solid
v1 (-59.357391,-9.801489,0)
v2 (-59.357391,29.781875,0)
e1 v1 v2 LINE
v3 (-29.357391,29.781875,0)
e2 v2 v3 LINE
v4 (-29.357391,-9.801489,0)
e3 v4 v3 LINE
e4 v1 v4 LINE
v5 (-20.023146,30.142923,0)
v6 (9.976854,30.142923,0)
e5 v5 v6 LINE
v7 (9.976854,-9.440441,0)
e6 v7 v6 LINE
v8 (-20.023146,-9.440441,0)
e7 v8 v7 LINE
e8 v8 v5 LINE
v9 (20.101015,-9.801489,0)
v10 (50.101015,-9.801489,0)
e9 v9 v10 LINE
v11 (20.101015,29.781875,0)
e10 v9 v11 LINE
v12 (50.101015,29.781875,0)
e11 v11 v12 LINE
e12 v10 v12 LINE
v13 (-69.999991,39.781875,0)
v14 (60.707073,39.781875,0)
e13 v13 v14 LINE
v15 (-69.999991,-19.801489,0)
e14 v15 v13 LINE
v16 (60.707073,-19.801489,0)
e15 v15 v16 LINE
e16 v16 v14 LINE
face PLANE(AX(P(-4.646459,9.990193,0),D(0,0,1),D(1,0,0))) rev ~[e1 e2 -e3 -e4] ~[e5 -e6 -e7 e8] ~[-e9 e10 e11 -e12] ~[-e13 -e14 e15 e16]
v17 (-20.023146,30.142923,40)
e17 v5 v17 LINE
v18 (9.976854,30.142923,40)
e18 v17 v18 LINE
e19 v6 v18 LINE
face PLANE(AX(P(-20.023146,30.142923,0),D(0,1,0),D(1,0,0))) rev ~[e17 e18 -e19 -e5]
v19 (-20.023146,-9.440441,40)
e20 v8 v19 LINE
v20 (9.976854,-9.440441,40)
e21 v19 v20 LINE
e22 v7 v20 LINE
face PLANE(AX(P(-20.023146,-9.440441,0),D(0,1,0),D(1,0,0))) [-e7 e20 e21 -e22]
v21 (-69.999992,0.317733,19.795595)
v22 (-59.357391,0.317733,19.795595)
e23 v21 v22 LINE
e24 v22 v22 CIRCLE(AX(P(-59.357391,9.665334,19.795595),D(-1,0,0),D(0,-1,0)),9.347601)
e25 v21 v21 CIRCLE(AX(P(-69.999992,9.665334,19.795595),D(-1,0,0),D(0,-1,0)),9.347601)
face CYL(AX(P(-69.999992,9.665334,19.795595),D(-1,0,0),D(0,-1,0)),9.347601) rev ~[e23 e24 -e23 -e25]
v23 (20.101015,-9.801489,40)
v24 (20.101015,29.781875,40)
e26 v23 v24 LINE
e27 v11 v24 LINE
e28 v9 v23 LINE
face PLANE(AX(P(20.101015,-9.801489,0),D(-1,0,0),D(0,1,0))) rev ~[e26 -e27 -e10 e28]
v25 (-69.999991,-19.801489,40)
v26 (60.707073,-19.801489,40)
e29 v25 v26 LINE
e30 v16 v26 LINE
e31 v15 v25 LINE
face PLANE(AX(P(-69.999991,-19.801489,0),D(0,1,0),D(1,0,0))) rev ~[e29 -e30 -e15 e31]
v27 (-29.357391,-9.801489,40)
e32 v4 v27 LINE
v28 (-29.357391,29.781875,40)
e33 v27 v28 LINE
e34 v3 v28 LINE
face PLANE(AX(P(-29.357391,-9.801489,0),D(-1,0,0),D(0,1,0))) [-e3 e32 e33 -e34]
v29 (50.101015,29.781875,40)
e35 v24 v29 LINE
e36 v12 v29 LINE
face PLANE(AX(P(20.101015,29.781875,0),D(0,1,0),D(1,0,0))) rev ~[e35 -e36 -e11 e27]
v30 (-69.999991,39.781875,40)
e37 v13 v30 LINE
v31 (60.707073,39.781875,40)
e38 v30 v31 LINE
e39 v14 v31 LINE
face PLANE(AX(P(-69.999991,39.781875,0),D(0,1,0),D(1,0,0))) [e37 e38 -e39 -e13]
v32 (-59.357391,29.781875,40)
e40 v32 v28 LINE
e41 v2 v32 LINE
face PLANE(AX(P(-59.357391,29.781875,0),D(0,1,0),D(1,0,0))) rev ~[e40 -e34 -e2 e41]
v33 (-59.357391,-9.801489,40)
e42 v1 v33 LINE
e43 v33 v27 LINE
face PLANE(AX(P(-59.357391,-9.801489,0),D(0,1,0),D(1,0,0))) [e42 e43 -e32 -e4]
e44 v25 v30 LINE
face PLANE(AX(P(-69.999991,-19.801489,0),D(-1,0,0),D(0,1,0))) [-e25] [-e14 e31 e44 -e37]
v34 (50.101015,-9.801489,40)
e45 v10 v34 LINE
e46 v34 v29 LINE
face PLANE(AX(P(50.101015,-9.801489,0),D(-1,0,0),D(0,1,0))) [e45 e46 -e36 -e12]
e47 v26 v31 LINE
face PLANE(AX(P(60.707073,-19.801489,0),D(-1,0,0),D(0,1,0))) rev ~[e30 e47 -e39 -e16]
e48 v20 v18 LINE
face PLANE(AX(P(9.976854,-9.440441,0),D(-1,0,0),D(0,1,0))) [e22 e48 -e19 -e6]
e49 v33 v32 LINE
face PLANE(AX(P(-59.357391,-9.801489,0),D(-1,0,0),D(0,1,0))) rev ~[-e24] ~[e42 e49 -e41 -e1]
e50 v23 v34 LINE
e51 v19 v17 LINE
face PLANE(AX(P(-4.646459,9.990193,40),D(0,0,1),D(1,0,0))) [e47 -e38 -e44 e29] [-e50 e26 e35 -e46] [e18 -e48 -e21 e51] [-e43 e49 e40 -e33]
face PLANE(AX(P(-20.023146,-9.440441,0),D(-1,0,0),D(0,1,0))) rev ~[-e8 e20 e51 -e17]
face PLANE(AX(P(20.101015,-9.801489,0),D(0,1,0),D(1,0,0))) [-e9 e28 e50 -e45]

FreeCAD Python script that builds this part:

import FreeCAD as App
import Part
import Sketcher

doc = App.newDocument("Part")
body = doc.addObject("PartDesign::Body", "Body")

# Sketch on XY plane
sketch1 = doc.addObject("Sketcher::SketchObject", "Sketch")
body.addObject(sketch1)
sketch1.AttachmentSupport = (doc.XY_Plane, [""])
sketch1.MapMode = "FlatFace"
sketch1.addGeometry([
    Part.LineSegment(App.Vector(-70, 40, 0), App.Vector(-70, -20, 0)),  # 0
    Part.LineSegment(App.Vector(-70, -20, 0), App.Vector(61, -20, 0)),  # 1
    Part.LineSegment(App.Vector(61, -20, 0), App.Vector(61, 40, 0)),  # 2
    Part.LineSegment(App.Vector(61, 40, 0), App.Vector(-70, 40, 0)),  # 3
    Part.LineSegment(App.Vector(-29, -10, 0), App.Vector(-59, -10, 0)),  # 4
    Part.LineSegment(App.Vector(-59, -10, 0), App.Vector(-59, 30, 0)),  # 5
    Part.LineSegment(App.Vector(-59, 30, 0), App.Vector(-29, 30, 0)),  # 6
    Part.LineSegment(App.Vector(-29, 30, 0), App.Vector(-29, -10, 0)),  # 7
    Part.LineSegment(App.Vector(50, -10, 0), App.Vector(20, -10, 0)),  # 8
    Part.LineSegment(App.Vector(20, -10, 0), App.Vector(20, 30, 0)),  # 9
    Part.LineSegment(App.Vector(20, 30, 0), App.Vector(50, 30, 0)),  # 10
    Part.LineSegment(App.Vector(50, 30, 0), App.Vector(50, -10, 0)),  # 11
    Part.LineSegment(App.Vector(10, -9, 0), App.Vector(-20, -9, 0)),  # 12
    Part.LineSegment(App.Vector(-20, -9, 0), App.Vector(-20, 30, 0)),  # 13
    Part.LineSegment(App.Vector(-20, 30, 0), App.Vector(10, 30, 0)),  # 14
    Part.LineSegment(App.Vector(10, 30, 0), App.Vector(10, -9, 0)),  # 15
], False)
sketch1.addConstraint([
    Sketcher.Constraint("Coincident", 0, 2, 1, 1),
    Sketcher.Constraint("Coincident", 1, 2, 2, 1),
    Sketcher.Constraint("Coincident", 2, 2, 3, 1),
    Sketcher.Constraint("Coincident", 3, 2, 0, 1),
    Sketcher.Constraint("Coincident", 4, 2, 5, 1),
    Sketcher.Constraint("Coincident", 5, 2, 6, 1),
    Sketcher.Constraint("Coincident", 6, 2, 7, 1),
    Sketcher.Constraint("Coincident", 7, 2, 4, 1),
    Sketcher.Constraint("Coincident", 8, 2, 9, 1),
    Sketcher.Constraint("Coincident", 9, 2, 10, 1),
    Sketcher.Constraint("Coincident", 10, 2, 11, 1),
    Sketcher.Constraint("Coincident", 11, 2, 8, 1),
    Sketcher.Constraint("Coincident", 12, 2, 13, 1),
    Sketcher.Constraint("Coincident", 13, 2, 14, 1),
    Sketcher.Constraint("Coincident", 14, 2, 15, 1),
    Sketcher.Constraint("Coincident", 15, 2, 12, 1),
    Sketcher.Constraint("Vertical", 0),
    Sketcher.Constraint("Horizontal", 1),
    Sketcher.Constraint("Vertical", 2),
    Sketcher.Constraint("Horizontal", 3),
    Sketcher.Constraint("Horizontal", 4),
    Sketcher.Constraint("Vertical", 5),
    Sketcher.Constraint("Horizontal", 6),
    Sketcher.Constraint("Vertical", 7),
    Sketcher.Constraint("Horizontal", 8),
    Sketcher.Constraint("Vertical", 9),
    Sketcher.Constraint("Horizontal", 10),
    Sketcher.Constraint("Vertical", 11),
    Sketcher.Constraint("Horizontal", 12),
    Sketcher.Constraint("Vertical", 13),
    Sketcher.Constraint("Horizontal", 14),
    Sketcher.Constraint("Vertical", 15),
    Sketcher.Constraint("Horizontal", 7, 2, 8, 2),
    Sketcher.Constraint("Horizontal", 6, 2, 9, 2),
    Sketcher.Constraint("Equal", 6, 8),
    Sketcher.Constraint("Equal", 10, 12),
    Sketcher.Constraint("Equal", 11, 13),
    Sketcher.Constraint("DistanceX", 4, 2, 4, 1, 30.0),
    Sketcher.Constraint("DistanceY", 0, 2, 4, 2, 10.0),
    Sketcher.Constraint("DistanceY", 5, 2, 3, 2, 10.0),
    Sketcher.Constraint("DistanceX", 0, 2, 4, 2, 10.6426),
    Sketcher.Constraint("DistanceX", 1, 1, 1, 2, 130.707065),
    Sketcher.Constraint("DistanceY", 0, 2, 0, 1, 59.583364),
    Sketcher.Constraint("DistanceX", 0, 2, -1, 1, 69.999991),
    Sketcher.Constraint("DistanceY", 0, 2, -1, 1, 19.801489),
    Sketcher.Constraint("DistanceY", 12, 2, -1, 1, 9.440441),
    Sketcher.Constraint("DistanceX", 8, 2, 1, 2, 40.606059),
    Sketcher.Constraint("DistanceX", 12, 2, 8, 2, 40.124161),
])
pad1 = doc.addObject("PartDesign::Pad", "Pad")
body.addObject(pad1)
pad1.Profile = sketch1
pad1.Length = 40

# Sketch on YZ plane
sketch2 = doc.addObject("Sketcher::SketchObject", "Sketch001")
body.addObject(sketch2)
sketch2.AttachmentSupport = (doc.YZ_Plane, [""])
sketch2.MapMode = "FlatFace"
sketch2.AttachmentOffset = App.Placement(App.Vector(0, 0, -69.999992), App.Rotation())
sketch2.addGeometry(Part.Circle(App.Vector(10, 20, 0), App.Vector(0, 0, 1), 9), False)
sketch2.addConstraint([
    Sketcher.Constraint("Diameter", 0, 18.695202),
    Sketcher.Constraint("DistanceX", -1, 1, 0, 3, 9.665334),
    Sketcher.Constraint("DistanceY", -1, 1, 0, 3, 19.795595),
])
pocket1 = doc.addObject("PartDesign::Pocket", "Pocket")
body.addObject(pocket1)
pocket1.Profile = sketch2
pocket1.Length = 32
pocket1.Reversed = True

doc.recompute()
